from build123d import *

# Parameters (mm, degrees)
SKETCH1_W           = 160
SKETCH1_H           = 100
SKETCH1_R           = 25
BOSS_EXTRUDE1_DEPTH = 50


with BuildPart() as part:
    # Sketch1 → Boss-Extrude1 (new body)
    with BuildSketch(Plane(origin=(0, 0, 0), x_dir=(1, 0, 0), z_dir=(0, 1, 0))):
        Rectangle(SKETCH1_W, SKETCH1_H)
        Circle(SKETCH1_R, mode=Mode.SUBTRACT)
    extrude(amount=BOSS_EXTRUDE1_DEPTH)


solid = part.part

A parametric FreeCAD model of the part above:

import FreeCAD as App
import Part
import Sketcher
from FreeCAD import Vector


def add_polygon(sketch, points):
    """Adds a closed chain of lines whose ends are joined by coincident constraints."""
    first, n = sketch.GeometryCount, len(points)
    for a, b in zip(points, points[1:] + points[:1]):
        sketch.addGeometry(Part.LineSegment(App.Vector(*a, 0), App.Vector(*b, 0)), False)
    for i in range(n):
        sketch.addConstraint(Sketcher.Constraint("Coincident", first + i, 2, first + (i + 1) % n, 1))

doc = App.newDocument("Part")
params = doc.addObject("Spreadsheet::Sheet", "Params")
for row, (alias, value) in enumerate([
    ("sketch1_diameter", "50 mm"),
    ("sketch1_width", "160 mm"),
    ("sketch1_height", "100 mm"),
    ("pad1_length", "50 mm"),
], start=1):
    params.set(f"A{row}", alias)
    params.set(f"B{row}", "=" + value)
    params.setAlias(f"B{row}", alias)

body = doc.addObject("PartDesign::Body", "Body")

# Sketch on XZ plane
sketch1 = body.newObject("Sketcher::SketchObject", "Sketch")
sketch1.AttachmentSupport = (doc.getObject("XZ_Plane"), [""])
sketch1.MapMode = "FlatFace"
add_polygon(sketch1, [(-80, -50), (-80, 50), (80, 50), (80, -50)])  # lines 0-3
sketch1.addGeometry(Part.Circle(Vector(0, 0, 0), Vector(0, 0, 1), 25), False)  # 4
sketch1.addConstraint(Sketcher.Constraint("Vertical", 0))
sketch1.addConstraint(Sketcher.Constraint("Horizontal", 1))
sketch1.addConstraint(Sketcher.Constraint("Vertical", 2))
sketch1.addConstraint(Sketcher.Constraint("Horizontal", 3))
sketch1.addConstraint(Sketcher.Constraint("Coincident", 4, 3, -1, 1))
sketch1.addConstraint(Sketcher.Constraint("Symmetric", 0, 2, 2, 2, -1, 1))
sketch1.addConstraint(Sketcher.Constraint("Diameter", 4, 50.0))
sketch1.addConstraint(Sketcher.Constraint("DistanceX", 1, 1, 1, 2, 160.0))
sketch1.addConstraint(Sketcher.Constraint("DistanceY", 0, 1, 0, 2, 100.0))
sketch1.setExpression("Constraints[10]", "Params.sketch1_diameter")
sketch1.setExpression("Constraints[11]", "Params.sketch1_width")
sketch1.setExpression("Constraints[12]", "Params.sketch1_height")
pad1 = body.newObject("PartDesign::Pad", "Pad")
pad1.Profile = sketch1
pad1.setExpression("Length", "Params.pad1_length")
pad1.Reversed = True

doc.recompute()
